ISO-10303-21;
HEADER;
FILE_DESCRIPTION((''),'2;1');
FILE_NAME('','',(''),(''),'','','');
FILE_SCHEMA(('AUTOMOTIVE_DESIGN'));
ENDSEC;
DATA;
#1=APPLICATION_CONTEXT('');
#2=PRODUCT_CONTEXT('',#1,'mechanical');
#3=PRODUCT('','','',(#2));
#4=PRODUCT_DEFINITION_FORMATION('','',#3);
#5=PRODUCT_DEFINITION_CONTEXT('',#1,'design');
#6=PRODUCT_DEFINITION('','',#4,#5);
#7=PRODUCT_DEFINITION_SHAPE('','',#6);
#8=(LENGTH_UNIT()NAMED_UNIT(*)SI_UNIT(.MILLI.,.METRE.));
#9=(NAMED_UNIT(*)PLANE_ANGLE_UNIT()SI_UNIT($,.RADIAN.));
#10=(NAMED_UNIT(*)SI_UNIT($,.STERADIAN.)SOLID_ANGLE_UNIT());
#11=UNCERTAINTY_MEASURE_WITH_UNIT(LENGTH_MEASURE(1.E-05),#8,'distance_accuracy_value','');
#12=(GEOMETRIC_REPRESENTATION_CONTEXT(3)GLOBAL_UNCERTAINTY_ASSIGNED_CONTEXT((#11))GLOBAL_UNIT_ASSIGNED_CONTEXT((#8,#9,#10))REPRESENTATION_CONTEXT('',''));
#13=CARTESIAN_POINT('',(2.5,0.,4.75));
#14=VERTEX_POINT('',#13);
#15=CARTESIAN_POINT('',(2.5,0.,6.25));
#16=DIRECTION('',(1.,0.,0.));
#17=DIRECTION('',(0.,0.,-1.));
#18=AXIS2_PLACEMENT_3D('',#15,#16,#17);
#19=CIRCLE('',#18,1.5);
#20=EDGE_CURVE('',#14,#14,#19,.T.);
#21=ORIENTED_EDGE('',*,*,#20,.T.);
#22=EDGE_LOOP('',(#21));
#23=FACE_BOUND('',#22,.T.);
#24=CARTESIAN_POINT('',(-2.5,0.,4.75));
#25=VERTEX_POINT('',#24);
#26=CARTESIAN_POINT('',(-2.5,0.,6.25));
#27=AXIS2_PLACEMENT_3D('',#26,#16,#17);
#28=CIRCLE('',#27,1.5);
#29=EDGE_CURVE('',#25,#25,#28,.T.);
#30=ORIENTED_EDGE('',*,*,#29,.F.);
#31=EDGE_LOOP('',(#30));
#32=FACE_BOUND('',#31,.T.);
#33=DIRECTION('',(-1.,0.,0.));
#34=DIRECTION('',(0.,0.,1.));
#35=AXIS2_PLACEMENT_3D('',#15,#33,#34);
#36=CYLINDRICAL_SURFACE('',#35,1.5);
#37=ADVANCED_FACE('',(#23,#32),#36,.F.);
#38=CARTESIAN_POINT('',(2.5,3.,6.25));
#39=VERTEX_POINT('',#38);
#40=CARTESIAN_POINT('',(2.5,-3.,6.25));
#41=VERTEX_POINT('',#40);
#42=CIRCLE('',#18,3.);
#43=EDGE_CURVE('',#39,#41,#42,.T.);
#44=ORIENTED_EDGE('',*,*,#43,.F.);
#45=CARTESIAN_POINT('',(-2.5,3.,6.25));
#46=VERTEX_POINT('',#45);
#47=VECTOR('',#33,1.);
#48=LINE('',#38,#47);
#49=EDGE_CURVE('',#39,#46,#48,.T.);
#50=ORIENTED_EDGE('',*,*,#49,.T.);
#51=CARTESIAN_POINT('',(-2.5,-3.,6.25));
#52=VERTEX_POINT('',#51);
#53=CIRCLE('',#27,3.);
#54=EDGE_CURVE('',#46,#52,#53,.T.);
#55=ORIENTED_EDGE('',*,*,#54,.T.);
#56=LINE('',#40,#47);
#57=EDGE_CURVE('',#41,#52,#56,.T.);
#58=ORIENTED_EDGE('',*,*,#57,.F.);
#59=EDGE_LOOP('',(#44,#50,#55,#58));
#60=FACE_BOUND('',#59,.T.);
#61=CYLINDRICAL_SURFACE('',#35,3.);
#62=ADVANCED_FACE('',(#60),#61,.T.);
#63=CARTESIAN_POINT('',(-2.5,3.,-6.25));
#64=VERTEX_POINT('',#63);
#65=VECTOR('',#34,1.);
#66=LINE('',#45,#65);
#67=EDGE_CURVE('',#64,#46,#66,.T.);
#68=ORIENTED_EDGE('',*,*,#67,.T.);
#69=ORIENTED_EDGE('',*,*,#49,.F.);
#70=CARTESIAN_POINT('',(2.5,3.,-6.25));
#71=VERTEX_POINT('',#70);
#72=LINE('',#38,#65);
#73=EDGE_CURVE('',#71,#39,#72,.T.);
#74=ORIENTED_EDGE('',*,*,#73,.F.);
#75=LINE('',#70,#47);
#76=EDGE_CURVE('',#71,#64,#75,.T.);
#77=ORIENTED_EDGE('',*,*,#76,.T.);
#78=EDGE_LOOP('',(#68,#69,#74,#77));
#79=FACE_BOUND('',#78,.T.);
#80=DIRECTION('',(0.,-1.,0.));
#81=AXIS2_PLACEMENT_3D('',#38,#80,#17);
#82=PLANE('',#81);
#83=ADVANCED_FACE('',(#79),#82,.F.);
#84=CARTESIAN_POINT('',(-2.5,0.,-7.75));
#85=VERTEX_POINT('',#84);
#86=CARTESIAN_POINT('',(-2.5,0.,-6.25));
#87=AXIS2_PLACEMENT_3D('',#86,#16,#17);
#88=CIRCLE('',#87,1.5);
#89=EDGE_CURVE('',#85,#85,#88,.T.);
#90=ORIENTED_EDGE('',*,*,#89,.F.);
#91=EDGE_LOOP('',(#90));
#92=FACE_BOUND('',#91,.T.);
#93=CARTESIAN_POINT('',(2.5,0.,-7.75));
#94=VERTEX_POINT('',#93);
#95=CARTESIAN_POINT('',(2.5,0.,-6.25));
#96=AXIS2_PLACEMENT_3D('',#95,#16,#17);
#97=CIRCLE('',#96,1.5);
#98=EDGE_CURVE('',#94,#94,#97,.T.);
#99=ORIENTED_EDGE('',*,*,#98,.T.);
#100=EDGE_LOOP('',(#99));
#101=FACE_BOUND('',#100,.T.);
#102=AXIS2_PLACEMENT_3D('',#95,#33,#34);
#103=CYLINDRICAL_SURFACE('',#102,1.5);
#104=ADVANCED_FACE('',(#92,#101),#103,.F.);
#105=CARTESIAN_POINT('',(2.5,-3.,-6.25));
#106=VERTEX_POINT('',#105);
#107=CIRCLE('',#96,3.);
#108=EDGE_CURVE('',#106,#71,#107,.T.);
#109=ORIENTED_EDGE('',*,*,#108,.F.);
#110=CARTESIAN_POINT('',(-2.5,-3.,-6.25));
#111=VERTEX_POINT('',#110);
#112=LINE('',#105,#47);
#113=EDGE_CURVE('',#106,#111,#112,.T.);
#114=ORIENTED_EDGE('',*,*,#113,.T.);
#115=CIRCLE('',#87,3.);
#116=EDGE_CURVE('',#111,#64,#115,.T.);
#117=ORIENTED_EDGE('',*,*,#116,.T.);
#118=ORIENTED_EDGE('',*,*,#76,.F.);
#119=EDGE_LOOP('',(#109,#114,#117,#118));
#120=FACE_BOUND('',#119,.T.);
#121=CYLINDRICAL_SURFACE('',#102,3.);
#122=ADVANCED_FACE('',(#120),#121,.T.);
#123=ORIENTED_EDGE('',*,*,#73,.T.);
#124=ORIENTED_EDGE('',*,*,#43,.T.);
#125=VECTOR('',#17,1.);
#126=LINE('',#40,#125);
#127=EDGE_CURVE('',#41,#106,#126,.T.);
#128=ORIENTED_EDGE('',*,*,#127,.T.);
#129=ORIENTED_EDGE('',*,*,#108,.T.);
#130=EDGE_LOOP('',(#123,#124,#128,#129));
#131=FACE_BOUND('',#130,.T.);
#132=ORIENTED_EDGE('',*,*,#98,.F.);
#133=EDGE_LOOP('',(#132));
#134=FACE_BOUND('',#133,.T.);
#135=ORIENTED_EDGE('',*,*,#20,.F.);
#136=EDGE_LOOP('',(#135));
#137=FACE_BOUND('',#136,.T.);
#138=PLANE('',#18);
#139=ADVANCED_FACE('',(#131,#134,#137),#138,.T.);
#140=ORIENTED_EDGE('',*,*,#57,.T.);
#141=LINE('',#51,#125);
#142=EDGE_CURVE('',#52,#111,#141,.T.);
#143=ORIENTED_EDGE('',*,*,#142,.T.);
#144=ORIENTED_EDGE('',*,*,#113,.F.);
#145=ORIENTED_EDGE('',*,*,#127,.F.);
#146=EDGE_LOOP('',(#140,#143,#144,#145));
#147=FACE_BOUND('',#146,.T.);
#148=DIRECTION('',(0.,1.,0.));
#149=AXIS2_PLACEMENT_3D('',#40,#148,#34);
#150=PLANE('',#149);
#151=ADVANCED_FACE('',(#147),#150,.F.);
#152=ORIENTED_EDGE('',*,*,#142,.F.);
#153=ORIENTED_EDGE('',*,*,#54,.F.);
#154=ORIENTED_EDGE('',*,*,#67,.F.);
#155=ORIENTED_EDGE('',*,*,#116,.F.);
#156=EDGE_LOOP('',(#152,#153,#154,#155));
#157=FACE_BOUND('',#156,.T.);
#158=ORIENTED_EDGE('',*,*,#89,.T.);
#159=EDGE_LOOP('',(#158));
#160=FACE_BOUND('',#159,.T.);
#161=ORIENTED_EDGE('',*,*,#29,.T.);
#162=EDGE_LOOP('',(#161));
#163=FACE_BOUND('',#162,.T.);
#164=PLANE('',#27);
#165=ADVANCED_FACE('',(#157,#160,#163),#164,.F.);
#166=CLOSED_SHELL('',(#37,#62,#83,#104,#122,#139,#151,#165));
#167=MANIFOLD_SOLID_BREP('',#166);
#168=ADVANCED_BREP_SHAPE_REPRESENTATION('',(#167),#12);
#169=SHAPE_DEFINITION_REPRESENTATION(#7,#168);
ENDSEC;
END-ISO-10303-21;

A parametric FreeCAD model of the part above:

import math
import FreeCAD as App
import Part
import Sketcher

V = App.Vector
Q = App.Units.Quantity

doc = App.newDocument("Part")
body = doc.addObject("PartDesign::Body", "Body")

# Sketch on YZ plane
sketch1 = body.newObject("Sketcher::SketchObject", "Sketch")
sketch1.AttachmentSupport = (doc.getObject("YZ_Plane"), [""])
sketch1.MapMode = "FlatFace"
sketch1.addGeometry([
    Part.LineSegment(V(3, -6.2, 0), V(3, 6.2, 0)),  # 0
    Part.ArcOfCircle(Part.Circle(V(0, 6.2, 0), V(0, 0, 1), 3), math.radians(0), math.radians(180)),  # 1
    Part.LineSegment(V(-3, 6.2, 0), V(-3, -6.2, 0)),  # 2
    Part.ArcOfCircle(Part.Circle(V(0, -6.2, 0), V(0, 0, 1), 3), math.radians(180), math.radians(360)),  # 3
    Part.Circle(V(0, -6.2, 0), V(0, 0, 1), 1.5),  # 4
    Part.Circle(V(0, 6.2, 0), V(0, 0, 1), 1.5),  # 5
], False)
sketch1.addConstraint([
    Sketcher.Constraint("Tangent", 0, 2, 1, 1),
    Sketcher.Constraint("Tangent", 1, 2, 2, 1),
    Sketcher.Constraint("Tangent", 2, 2, 3, 1),
    Sketcher.Constraint("Tangent", 3, 2, 0, 1),
    Sketcher.Constraint("Vertical", 0),
    Sketcher.Constraint("Vertical", 2),
    Sketcher.Constraint("Coincident", 4, 3, 3, 3),
    Sketcher.Constraint("Coincident", 5, 3, 1, 3),
    Sketcher.Constraint("Equal", 4, 5),
    Sketcher.Constraint("Symmetric", 1, 3, 3, 3, -1, 1),
    Sketcher.Constraint("Diameter", 4, Q("3 mm")),
    Sketcher.Constraint("Radius", 1, Q("3 mm")),
    Sketcher.Constraint("DistanceY", 0, 1, 0, 2, Q("12.5 mm")),
])
pad1 = body.newObject("PartDesign::Pad", "Pad")
pad1.Profile = sketch1
pad1.Length = 5
pad1.Midplane = True

doc.recompute()
